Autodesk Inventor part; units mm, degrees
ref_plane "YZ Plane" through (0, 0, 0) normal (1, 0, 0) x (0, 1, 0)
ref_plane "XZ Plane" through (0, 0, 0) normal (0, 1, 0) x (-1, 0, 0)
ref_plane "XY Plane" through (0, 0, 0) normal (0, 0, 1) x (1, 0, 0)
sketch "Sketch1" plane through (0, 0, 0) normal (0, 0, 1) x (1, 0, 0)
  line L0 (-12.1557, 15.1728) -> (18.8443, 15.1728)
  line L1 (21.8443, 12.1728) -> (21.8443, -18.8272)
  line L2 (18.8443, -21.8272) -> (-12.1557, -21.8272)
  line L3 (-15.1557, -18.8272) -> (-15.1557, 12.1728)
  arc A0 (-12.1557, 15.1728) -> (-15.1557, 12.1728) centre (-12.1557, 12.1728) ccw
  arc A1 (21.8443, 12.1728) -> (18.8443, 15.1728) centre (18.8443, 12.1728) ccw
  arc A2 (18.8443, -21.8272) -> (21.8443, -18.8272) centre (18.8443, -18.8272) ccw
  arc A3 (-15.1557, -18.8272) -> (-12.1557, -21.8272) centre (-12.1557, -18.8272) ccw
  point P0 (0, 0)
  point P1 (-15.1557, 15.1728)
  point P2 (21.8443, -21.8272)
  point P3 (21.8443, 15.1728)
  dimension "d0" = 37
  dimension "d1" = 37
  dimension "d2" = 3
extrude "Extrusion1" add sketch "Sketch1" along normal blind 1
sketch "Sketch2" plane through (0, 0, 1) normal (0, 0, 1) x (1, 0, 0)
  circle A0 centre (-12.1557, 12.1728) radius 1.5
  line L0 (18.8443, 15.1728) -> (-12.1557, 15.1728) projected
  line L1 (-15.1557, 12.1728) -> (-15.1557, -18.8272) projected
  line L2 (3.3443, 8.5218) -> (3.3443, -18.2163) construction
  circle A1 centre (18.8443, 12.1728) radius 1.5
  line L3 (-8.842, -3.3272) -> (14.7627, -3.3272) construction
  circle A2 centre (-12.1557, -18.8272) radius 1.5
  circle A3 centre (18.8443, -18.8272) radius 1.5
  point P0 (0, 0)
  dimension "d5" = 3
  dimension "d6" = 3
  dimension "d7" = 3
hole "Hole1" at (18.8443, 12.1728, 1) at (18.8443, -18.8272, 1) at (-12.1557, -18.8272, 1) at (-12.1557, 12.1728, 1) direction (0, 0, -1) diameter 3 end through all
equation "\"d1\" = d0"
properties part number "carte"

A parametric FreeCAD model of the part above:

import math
import FreeCAD as App
import Part
import Sketcher

V = App.Vector
Q = App.Units.Quantity

doc = App.newDocument("Part")
body = doc.addObject("PartDesign::Body", "Body")

sketch1 = body.newObject("Sketcher::SketchObject", "Sketch")
sketch1.AttachmentSupport = (doc.getObject("XY_Plane"), [""])
sketch1.MapMode = "FlatFace"
sketch1.addGeometry([
    Part.LineSegment(V(18.8, 15.2, 0), V(-12.2, 15.2, 0)),
    Part.ArcOfCircle(Part.Circle(V(-12.2, 12.2, 0), V(0, 0, 1), 3), math.radians(90), math.radians(180)),
    Part.LineSegment(V(-15.2, 12.2, 0), V(-15.2, -18.8, 0)),
    Part.ArcOfCircle(Part.Circle(V(-12.2, -18.8, 0), V(0, 0, 1), 3), math.radians(180), math.radians(270)),
    Part.LineSegment(V(-12.2, -21.8, 0), V(18.8, -21.8, 0)),
    Part.ArcOfCircle(Part.Circle(V(18.8, -18.8, 0), V(0, 0, 1), 3), math.radians(-90), math.radians(0)),
    Part.LineSegment(V(21.8, -18.8, 0), V(21.8, 12.2, 0)),
    Part.ArcOfCircle(Part.Circle(V(18.8, 12.2, 0), V(0, 0, 1), 3), math.radians(0), math.radians(90)),
], False)
sketch1.addConstraint([
    Sketcher.Constraint("Tangent", 0, 2, 1, 1),
    Sketcher.Constraint("Tangent", 1, 2, 2, 1),
    Sketcher.Constraint("Tangent", 2, 2, 3, 1),
    Sketcher.Constraint("Tangent", 3, 2, 4, 1),
    Sketcher.Constraint("Tangent", 4, 2, 5, 1),
    Sketcher.Constraint("Tangent", 5, 2, 6, 1),
    Sketcher.Constraint("Tangent", 6, 2, 7, 1),
    Sketcher.Constraint("Tangent", 7, 2, 0, 1),
    Sketcher.Constraint("Horizontal", 0),
    Sketcher.Constraint("Vertical", 2),
    Sketcher.Constraint("Horizontal", 4),
    Sketcher.Constraint("Vertical", 6),
    Sketcher.Constraint("Equal", 1, 3),
    Sketcher.Constraint("Equal", 3, 5),
    Sketcher.Constraint("Equal", 5, 7),
    Sketcher.Constraint("Equal", 4, 2),
    Sketcher.Constraint("Radius", 1, Q("3 mm")),
    Sketcher.Constraint("DistanceX", 0, 2, 0, 1, Q("31 mm")),
    Sketcher.Constraint("DistanceX", 1, 3, -1, 1, Q("12.1557 mm")),
    Sketcher.Constraint("DistanceY", -1, 1, 1, 3, Q("12.1728 mm")),
])
pad1 = body.newObject("PartDesign::Pad", "Pad")
pad1.Profile = sketch1
pad1.Length = 1

sketch2 = body.newObject("Sketcher::SketchObject", "Sketch001")
sketch2.AttachmentSupport = (doc.getObject("XY_Plane"), [""])
sketch2.MapMode = "FlatFace"
sketch2.AttachmentOffset = App.Placement(V(0, 0, 1), App.Rotation())
sketch2.addGeometry([
    Part.Circle(V(18.8, 12.2, 0), V(0, 0, 1), 1.5),
    Part.Circle(V(18.8, -18.8, 0), V(0, 0, 1), 1.5),
    Part.Circle(V(-12.2, -18.8, 0), V(0, 0, 1), 1.5),
    Part.Circle(V(-12.2, 12.2, 0), V(0, 0, 1), 1.5),
], False)
sketch2.addConstraint([
    Sketcher.Constraint("Equal", 0, 1),
    Sketcher.Constraint("Equal", 1, 2),
    Sketcher.Constraint("Equal", 2, 3),
    Sketcher.Constraint("Horizontal", 1, 3, 2, 3),
    Sketcher.Constraint("Horizontal", 0, 3, 3, 3),
    Sketcher.Constraint("Vertical", 0, 3, 1, 3),
    Sketcher.Constraint("Vertical", 2, 3, 3, 3),
    Sketcher.Constraint("Diameter", 0, Q("3 mm")),
    Sketcher.Constraint("DistanceY", 1, 3, 0, 3, Q("31 mm")),
    Sketcher.Constraint("DistanceX", 2, 3, 1, 3, Q("31 mm")),
    Sketcher.Constraint("DistanceX", -1, 1, 0, 3, Q("18.8443 mm")),
    Sketcher.Constraint("DistanceY", -1, 1, 0, 3, Q("12.1728 mm")),
])
doc.recompute()
hole = body.newObject("PartDesign::Hole", "Hole")
hole.Profile = sketch2
hole.ThreadType = "None"
hole.Diameter = 3
hole.DepthType = "ThroughAll"

doc.recompute()
